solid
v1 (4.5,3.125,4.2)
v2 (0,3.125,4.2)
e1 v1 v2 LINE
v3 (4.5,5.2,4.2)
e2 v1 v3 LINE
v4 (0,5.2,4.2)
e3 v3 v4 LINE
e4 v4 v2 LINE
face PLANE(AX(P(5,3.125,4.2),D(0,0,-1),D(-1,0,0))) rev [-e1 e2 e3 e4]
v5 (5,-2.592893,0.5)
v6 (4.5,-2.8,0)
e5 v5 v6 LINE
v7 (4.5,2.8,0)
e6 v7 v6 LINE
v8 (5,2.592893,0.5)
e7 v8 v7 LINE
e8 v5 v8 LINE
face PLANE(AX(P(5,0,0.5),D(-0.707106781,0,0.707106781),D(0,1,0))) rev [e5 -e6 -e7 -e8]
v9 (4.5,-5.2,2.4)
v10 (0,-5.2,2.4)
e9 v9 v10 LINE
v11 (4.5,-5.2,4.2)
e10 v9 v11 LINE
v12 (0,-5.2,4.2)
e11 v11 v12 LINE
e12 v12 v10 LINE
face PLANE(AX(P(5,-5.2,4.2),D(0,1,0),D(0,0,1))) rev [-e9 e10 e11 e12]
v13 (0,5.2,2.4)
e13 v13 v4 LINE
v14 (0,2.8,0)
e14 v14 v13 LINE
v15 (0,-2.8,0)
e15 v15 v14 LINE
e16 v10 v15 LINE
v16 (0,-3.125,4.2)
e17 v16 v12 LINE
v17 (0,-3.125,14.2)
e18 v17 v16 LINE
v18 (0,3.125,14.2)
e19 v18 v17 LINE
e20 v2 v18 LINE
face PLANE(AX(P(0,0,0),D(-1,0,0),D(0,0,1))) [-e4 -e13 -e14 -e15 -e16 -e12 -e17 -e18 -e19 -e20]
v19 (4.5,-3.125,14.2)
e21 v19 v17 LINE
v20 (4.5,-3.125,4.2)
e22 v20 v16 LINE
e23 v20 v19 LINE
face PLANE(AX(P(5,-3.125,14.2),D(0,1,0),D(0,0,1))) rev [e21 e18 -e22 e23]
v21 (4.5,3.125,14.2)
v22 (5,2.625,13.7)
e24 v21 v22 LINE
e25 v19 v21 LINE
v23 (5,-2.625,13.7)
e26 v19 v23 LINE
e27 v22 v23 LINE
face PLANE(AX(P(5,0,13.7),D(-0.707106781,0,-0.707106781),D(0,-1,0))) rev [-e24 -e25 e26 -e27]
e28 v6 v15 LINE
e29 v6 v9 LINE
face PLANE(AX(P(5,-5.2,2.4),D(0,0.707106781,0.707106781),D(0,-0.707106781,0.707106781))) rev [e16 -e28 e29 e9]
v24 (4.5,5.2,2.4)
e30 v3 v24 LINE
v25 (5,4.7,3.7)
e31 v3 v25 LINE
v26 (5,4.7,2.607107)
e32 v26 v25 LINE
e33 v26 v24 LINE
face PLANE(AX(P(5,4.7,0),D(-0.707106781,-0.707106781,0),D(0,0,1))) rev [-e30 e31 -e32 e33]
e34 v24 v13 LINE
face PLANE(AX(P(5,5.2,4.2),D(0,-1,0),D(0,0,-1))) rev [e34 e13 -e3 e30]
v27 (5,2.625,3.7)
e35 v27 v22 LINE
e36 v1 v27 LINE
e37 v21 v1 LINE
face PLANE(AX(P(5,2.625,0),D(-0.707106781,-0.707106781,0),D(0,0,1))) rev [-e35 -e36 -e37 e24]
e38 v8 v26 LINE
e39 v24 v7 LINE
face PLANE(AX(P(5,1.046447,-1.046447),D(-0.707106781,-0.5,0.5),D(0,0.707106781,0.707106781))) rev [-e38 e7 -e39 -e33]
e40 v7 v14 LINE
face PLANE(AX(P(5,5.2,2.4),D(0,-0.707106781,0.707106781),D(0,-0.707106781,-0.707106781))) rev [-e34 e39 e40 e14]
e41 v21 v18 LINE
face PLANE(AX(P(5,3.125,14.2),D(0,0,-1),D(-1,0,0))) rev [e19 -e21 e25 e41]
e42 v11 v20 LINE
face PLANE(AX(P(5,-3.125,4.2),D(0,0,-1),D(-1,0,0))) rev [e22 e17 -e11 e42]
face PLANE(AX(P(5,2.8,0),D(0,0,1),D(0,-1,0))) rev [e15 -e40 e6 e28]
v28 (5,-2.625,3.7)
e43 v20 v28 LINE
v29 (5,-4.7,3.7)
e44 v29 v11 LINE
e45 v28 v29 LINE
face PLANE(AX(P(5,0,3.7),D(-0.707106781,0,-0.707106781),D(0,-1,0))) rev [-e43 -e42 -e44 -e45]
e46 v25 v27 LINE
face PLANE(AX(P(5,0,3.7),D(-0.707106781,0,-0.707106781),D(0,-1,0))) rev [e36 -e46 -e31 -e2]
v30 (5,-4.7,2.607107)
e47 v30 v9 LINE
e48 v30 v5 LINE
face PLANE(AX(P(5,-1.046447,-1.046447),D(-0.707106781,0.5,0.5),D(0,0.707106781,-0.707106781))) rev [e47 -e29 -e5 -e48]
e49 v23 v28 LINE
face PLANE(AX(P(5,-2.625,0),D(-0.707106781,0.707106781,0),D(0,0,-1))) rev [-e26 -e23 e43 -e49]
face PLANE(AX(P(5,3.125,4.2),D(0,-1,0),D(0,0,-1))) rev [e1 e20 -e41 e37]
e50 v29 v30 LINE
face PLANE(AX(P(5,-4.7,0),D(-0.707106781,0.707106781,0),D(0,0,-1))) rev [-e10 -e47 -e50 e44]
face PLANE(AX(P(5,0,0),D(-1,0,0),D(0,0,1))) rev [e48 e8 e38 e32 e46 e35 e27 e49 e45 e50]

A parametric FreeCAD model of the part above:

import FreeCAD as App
import Part
import Sketcher
from FreeCAD import Vector


def edges_at(feature, points):
    """Names of the edges that pass closest to the given points."""
    edges = feature.Shape.Edges
    near = lambda p: min(range(len(edges)), key=lambda i: edges[i].distToShape(Part.Vertex(*p))[0])
    return sorted({f"Edge{near(p) + 1}" for p in points})

doc = App.newDocument("Part")
body = doc.addObject("PartDesign::Body", "Body")

# Sketch on YZ plane
sketch1 = body.newObject("Sketcher::SketchObject", "Sketch")
sketch1.AttachmentSupport = (doc.getObject("YZ_Plane"), [""])
sketch1.MapMode = "FlatFace"
sketch1.addGeometry([
    Part.LineSegment(Vector(3.1, 4.2, 0), Vector(3.1, 14.2, 0)),  # 0
    Part.LineSegment(Vector(3.1, 14.2, 0), Vector(-3.1, 14.2, 0)),  # 1
    Part.LineSegment(Vector(-3.1, 14.2, 0), Vector(-3.1, 4.2, 0)),  # 2
    Part.LineSegment(Vector(-3.1, 4.2, 0), Vector(-5.2, 4.2, 0)),  # 3
    Part.LineSegment(Vector(-5.2, 4.2, 0), Vector(-5.2, 2.4, 0)),  # 4
    Part.LineSegment(Vector(-5.2, 2.4, 0), Vector(-2.8, 0, 0)),  # 5
    Part.LineSegment(Vector(-2.8, 0, 0), Vector(2.8, 0, 0)),  # 6
    Part.LineSegment(Vector(2.8, 0, 0), Vector(5.2, 2.4, 0)),  # 7
    Part.LineSegment(Vector(5.2, 2.4, 0), Vector(5.2, 4.2, 0)),  # 8
    Part.LineSegment(Vector(5.2, 4.2, 0), Vector(3.1, 4.2, 0)),  # 9
], False)
sketch1.addConstraint([
    Sketcher.Constraint("Coincident", 0, 2, 1, 1),
    Sketcher.Constraint("Coincident", 1, 2, 2, 1),
    Sketcher.Constraint("Coincident", 2, 2, 3, 1),
    Sketcher.Constraint("Coincident", 3, 2, 4, 1),
    Sketcher.Constraint("Coincident", 4, 2, 5, 1),
    Sketcher.Constraint("Coincident", 5, 2, 6, 1),
    Sketcher.Constraint("Coincident", 6, 2, 7, 1),
    Sketcher.Constraint("Coincident", 7, 2, 8, 1),
    Sketcher.Constraint("Coincident", 8, 2, 9, 1),
    Sketcher.Constraint("Coincident", 9, 2, 0, 1),
    Sketcher.Constraint("Vertical", 0),
    Sketcher.Constraint("Horizontal", 1),
    Sketcher.Constraint("Vertical", 2),
    Sketcher.Constraint("Horizontal", 3),
    Sketcher.Constraint("Vertical", 4),
    Sketcher.Constraint("Horizontal", 6),
    Sketcher.Constraint("Vertical", 8),
    Sketcher.Constraint("Horizontal", 9),
    Sketcher.Constraint("Symmetric", 5, 2, 6, 2, -1, 1),
    Sketcher.Constraint("Symmetric", 4, 2, 7, 2, -2),
    Sketcher.Constraint("Symmetric", 2, 2, 9, 2, -2),
    Sketcher.Constraint("Perpendicular", 5, 7),
    Sketcher.Constraint("DistanceY", 0, 1, 0, 2, 10.0),
    Sketcher.Constraint("DistanceX", 6, 1, 6, 2, 5.6),
    Sketcher.Constraint("DistanceY", 4, 2, 4, 1, 1.8),
    Sketcher.Constraint("DistanceX", 4, 2, 6, 2, 8.0),
    Sketcher.Constraint("DistanceX", 1, 2, 1, 1, 6.25),
])
pad1 = body.newObject("PartDesign::Pad", "Pad")
pad1.Profile = sketch1
pad1.Length = 5
doc.recompute()

chamfer = body.newObject("PartDesign::Chamfer", "Chamfer")
chamfer.Base = (pad1, edges_at(pad1, [
    (5, 0, 14.2),
    (5, -3.125, 9.2),
    (5, -4.162, 4.2),
    (5, -5.2, 3.3),
    (5, -4, 1.2),
    (5, 0, 0),
    (5, 4, 1.2),
    (5, 5.2, 3.3),
    (5, 4.162, 4.2),
    (5, 3.125, 9.2),
]))
chamfer.Size = 0.5

doc.recompute()
